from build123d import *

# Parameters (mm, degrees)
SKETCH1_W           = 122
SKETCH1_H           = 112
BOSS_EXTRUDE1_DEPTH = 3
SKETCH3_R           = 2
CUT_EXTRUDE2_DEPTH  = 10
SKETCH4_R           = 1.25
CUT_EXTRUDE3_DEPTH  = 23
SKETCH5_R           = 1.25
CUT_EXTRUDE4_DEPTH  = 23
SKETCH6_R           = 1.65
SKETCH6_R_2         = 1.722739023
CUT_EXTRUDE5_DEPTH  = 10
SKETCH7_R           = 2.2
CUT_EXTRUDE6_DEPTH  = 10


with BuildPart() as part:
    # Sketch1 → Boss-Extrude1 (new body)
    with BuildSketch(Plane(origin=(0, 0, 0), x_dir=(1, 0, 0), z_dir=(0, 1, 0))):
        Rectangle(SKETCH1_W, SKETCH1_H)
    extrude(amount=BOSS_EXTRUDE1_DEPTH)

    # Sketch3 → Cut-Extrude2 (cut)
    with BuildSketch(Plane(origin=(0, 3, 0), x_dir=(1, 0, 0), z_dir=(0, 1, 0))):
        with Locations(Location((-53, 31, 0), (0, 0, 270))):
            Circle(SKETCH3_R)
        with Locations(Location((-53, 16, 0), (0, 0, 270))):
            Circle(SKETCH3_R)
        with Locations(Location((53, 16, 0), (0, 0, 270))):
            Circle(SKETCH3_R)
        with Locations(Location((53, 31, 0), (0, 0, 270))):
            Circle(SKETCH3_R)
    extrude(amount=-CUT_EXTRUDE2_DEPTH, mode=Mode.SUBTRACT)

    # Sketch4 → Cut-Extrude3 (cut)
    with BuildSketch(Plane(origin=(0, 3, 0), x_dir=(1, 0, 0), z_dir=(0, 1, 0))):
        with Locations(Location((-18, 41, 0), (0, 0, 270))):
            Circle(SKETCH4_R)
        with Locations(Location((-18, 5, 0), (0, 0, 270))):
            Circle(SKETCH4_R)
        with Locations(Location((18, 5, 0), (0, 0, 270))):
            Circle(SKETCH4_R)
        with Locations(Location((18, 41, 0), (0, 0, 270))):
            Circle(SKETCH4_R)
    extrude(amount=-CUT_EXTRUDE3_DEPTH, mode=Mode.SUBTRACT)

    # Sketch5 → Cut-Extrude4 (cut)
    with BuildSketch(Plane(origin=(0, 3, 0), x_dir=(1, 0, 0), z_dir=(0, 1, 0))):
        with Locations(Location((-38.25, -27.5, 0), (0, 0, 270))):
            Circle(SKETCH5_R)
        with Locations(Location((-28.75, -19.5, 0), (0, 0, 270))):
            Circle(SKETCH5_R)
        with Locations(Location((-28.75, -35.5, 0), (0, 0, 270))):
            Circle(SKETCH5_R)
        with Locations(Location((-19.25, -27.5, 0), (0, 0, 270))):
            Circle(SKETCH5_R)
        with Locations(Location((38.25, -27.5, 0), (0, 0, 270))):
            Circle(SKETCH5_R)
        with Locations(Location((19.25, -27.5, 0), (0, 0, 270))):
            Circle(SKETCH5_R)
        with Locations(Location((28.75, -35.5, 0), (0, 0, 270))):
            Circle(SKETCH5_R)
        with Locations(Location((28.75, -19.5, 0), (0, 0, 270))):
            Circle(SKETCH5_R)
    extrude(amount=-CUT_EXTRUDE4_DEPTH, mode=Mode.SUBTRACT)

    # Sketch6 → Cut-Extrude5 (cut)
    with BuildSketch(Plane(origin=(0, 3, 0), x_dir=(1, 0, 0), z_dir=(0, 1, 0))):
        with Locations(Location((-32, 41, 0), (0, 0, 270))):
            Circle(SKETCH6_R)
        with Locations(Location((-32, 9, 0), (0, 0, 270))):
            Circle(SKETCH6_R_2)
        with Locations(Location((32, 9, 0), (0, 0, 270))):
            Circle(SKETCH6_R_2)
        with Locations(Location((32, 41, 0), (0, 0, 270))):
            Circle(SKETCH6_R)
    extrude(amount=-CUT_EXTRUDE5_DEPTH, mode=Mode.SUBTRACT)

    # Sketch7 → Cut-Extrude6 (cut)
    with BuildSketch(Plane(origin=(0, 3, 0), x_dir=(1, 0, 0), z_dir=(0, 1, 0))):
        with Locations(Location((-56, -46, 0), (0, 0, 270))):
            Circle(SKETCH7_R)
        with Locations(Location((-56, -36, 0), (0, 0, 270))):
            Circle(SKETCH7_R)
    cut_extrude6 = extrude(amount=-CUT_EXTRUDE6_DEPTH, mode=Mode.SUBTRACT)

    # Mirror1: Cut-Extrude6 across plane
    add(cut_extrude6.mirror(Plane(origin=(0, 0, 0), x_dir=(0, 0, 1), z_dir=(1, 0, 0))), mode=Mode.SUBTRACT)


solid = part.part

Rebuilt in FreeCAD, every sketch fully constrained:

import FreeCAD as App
import Part
import Sketcher

V = App.Vector
Q = App.Units.Quantity


def add_polygon(sketch, points):
    """Adds a closed chain of lines whose ends are joined by coincident constraints."""
    first, n = sketch.GeometryCount, len(points)
    for a, b in zip(points, points[1:] + points[:1]):
        sketch.addGeometry(Part.LineSegment(App.Vector(*a, 0), App.Vector(*b, 0)), False)
    for i in range(n):
        sketch.addConstraint(Sketcher.Constraint("Coincident", first + i, 2, first + (i + 1) % n, 1))

doc = App.newDocument("Part")
params = doc.addObject("Spreadsheet::Sheet", "Params")
for row, (alias, value) in enumerate([
    ("sketch1_width", "122 mm"),
    ("sketch1_height", "112 mm"),
    ("pad1_length", "3 mm"),
    ("sketch2_diameter", "4 mm"),
    ("pocket1_length", "10 mm"),
    ("sketch3_diameter", "2.5 mm"),
    ("pocket2_length", "23 mm"),
    ("sketch4_diameter", "2.5 mm"),
    ("pocket3_length", "23 mm"),
    ("sketch5_diameter", "3.3 mm"),
    ("pocket4_length", "10 mm"),
    ("sketch6_diameter", "4.4 mm"),
    ("pocket5_length", "10 mm"),
], start=1):
    params.set(f"A{row}", alias)
    params.set(f"B{row}", "=" + value)
    params.setAlias(f"B{row}", alias)

body = doc.addObject("PartDesign::Body", "Body")

# Sketch on XZ plane
sketch1 = doc.addObject("Sketcher::SketchObject", "Sketch")
body.addObject(sketch1)
sketch1.AttachmentSupport = (doc.XZ_Plane, [""])
sketch1.MapMode = "FlatFace"
add_polygon(sketch1, [(-61, -56), (-61, 56), (61, 56), (61, -56)])  # lines 0-3
sketch1.addConstraint([
    Sketcher.Constraint("Vertical", 0),
    Sketcher.Constraint("Horizontal", 1),
    Sketcher.Constraint("Vertical", 2),
    Sketcher.Constraint("Horizontal", 3),
    Sketcher.Constraint("Symmetric", 0, 2, 2, 2, -1, 1),
    Sketcher.Constraint("DistanceX", 1, 1, 1, 2, Q("122 mm")),
    Sketcher.Constraint("DistanceY", 0, 1, 0, 2, Q("112 mm")),
])
sketch1.setExpression("Constraints[9]", "Params.sketch1_width")
sketch1.setExpression("Constraints[10]", "Params.sketch1_height")
pad1 = doc.addObject("PartDesign::Pad", "Pad")
body.addObject(pad1)
pad1.Profile = sketch1
pad1.setExpression("Length", "Params.pad1_length")
pad1.Reversed = True

# Sketch on XZ plane
sketch2 = doc.addObject("Sketcher::SketchObject", "Sketch001")
body.addObject(sketch2)
sketch2.AttachmentSupport = (doc.XZ_Plane, [""])
sketch2.MapMode = "FlatFace"
sketch2.AttachmentOffset = App.Placement(V(0, 0, -3), App.Rotation())
sketch2.addGeometry([
    Part.Circle(V(-53, -31, 0), V(0, 0, 1), 2),
    Part.Circle(V(-53, -16, 0), V(0, 0, 1), 2),
    Part.Circle(V(53, -16, 0), V(0, 0, 1), 2),
    Part.Circle(V(53, -31, 0), V(0, 0, 1), 2),
], False)
sketch2.addConstraint([
    Sketcher.Constraint("Equal", 0, 1),
    Sketcher.Constraint("Equal", 1, 2),
    Sketcher.Constraint("Equal", 2, 3),
    Sketcher.Constraint("Symmetric", 1, 3, 2, 3, -2),
    Sketcher.Constraint("Symmetric", 0, 3, 3, 3, -2),
    Sketcher.Constraint("Vertical", 0, 3, 1, 3),
    Sketcher.Constraint("Diameter", 0, Q("4 mm")),
    Sketcher.Constraint("DistanceX", 0, 3, -1, 1, Q("53 mm")),
    Sketcher.Constraint("DistanceY", 0, 3, -1, 1, Q("31 mm")),
    Sketcher.Constraint("DistanceY", 1, 3, -1, 1, Q("16 mm")),
])
sketch2.setExpression("Constraints[6]", "Params.sketch2_diameter")
pocket1 = doc.addObject("PartDesign::Pocket", "Pocket")
body.addObject(pocket1)
pocket1.Profile = sketch2
pocket1.setExpression("Length", "Params.pocket1_length")
pocket1.Reversed = True

# Sketch on XZ plane
sketch3 = doc.addObject("Sketcher::SketchObject", "Sketch002")
body.addObject(sketch3)
sketch3.AttachmentSupport = (doc.XZ_Plane, [""])
sketch3.MapMode = "FlatFace"
sketch3.AttachmentOffset = App.Placement(V(0, 0, -3), App.Rotation())
sketch3.addGeometry([
    Part.Circle(V(-18, -41, 0), V(0, 0, 1), 1.25),
    Part.Circle(V(-18, -5, 0), V(0, 0, 1), 1.25),
    Part.Circle(V(18, -5, 0), V(0, 0, 1), 1.25),
    Part.Circle(V(18, -41, 0), V(0, 0, 1), 1.25),
], False)
sketch3.addConstraint([
    Sketcher.Constraint("Equal", 0, 1),
    Sketcher.Constraint("Equal", 1, 2),
    Sketcher.Constraint("Equal", 2, 3),
    Sketcher.Constraint("Symmetric", 1, 3, 2, 3, -2),
    Sketcher.Constraint("Symmetric", 0, 3, 3, 3, -2),
    Sketcher.Constraint("Vertical", 0, 3, 1, 3),
    Sketcher.Constraint("Diameter", 0, Q("2.5 mm")),
    Sketcher.Constraint("DistanceX", 0, 3, -1, 1, Q("18 mm")),
    Sketcher.Constraint("DistanceY", 0, 3, -1, 1, Q("41 mm")),
    Sketcher.Constraint("DistanceY", 1, 3, -1, 1, Q("5 mm")),
])
sketch3.setExpression("Constraints[6]", "Params.sketch3_diameter")
pocket2 = doc.addObject("PartDesign::Pocket", "Pocket001")
body.addObject(pocket2)
pocket2.Profile = sketch3
pocket2.setExpression("Length", "Params.pocket2_length")
pocket2.Reversed = True

# Sketch on XZ plane
sketch4 = doc.addObject("Sketcher::SketchObject", "Sketch003")
body.addObject(sketch4)
sketch4.AttachmentSupport = (doc.XZ_Plane, [""])
sketch4.MapMode = "FlatFace"
sketch4.AttachmentOffset = App.Placement(V(0, 0, -3), App.Rotation())
sketch4.addGeometry([
    Part.Circle(V(-38.25, 27.5, 0), V(0, 0, 1), 1.25),  # 0
    Part.Circle(V(-28.75, 19.5, 0), V(0, 0, 1), 1.25),  # 1
    Part.Circle(V(-28.75, 35.5, 0), V(0, 0, 1), 1.25),  # 2
    Part.Circle(V(-19.25, 27.5, 0), V(0, 0, 1), 1.25),  # 3
    Part.Circle(V(38.25, 27.5, 0), V(0, 0, 1), 1.25),  # 4
    Part.Circle(V(19.25, 27.5, 0), V(0, 0, 1), 1.25),  # 5
    Part.Circle(V(28.75, 35.5, 0), V(0, 0, 1), 1.25),  # 6
    Part.Circle(V(28.75, 19.5, 0), V(0, 0, 1), 1.25),  # 7
], False)
sketch4.addConstraint([
    Sketcher.Constraint("Equal", 0, 1),
    Sketcher.Constraint("Equal", 1, 2),
    Sketcher.Constraint("Equal", 2, 3),
    Sketcher.Constraint("Equal", 3, 4),
    Sketcher.Constraint("Equal", 4, 5),
    Sketcher.Constraint("Equal", 5, 6),
    Sketcher.Constraint("Equal", 6, 7),
    Sketcher.Constraint("Symmetric", 0, 3, 4, 3, -2),
    Sketcher.Constraint("Symmetric", 3, 3, 5, 3, -2),
    Sketcher.Constraint("Symmetric", 2, 3, 6, 3, -2),
    Sketcher.Constraint("Symmetric", 1, 3, 7, 3, -2),
    Sketcher.Constraint("Horizontal", 0, 3, 3, 3),
    Sketcher.Constraint("Vertical", 1, 3, 2, 3),
    Sketcher.Constraint("Diameter", 0, Q("2.5 mm")),
    Sketcher.Constraint("DistanceY", 1, 3, 0, 3, Q("8 mm")),
    Sketcher.Constraint("DistanceY", 0, 3, 2, 3, Q("8 mm")),
    Sketcher.Constraint("DistanceX", 0, 3, 3, 3, Q("19 mm")),
    Sketcher.Constraint("DistanceX", 1, 3, 4, 3, Q("67 mm")),
    Sketcher.Constraint("DistanceY", -1, 1, 0, 3, Q("27.5 mm")),
    Sketcher.Constraint("DistanceX", 0, 3, 1, 3, Q("9.5 mm")),
])
sketch4.setExpression("Constraints[13]", "Params.sketch4_diameter")
pocket3 = doc.addObject("PartDesign::Pocket", "Pocket002")
body.addObject(pocket3)
pocket3.Profile = sketch4
pocket3.setExpression("Length", "Params.pocket3_length")
pocket3.Reversed = True

# Sketch on XZ plane
sketch5 = doc.addObject("Sketcher::SketchObject", "Sketch004")
body.addObject(sketch5)
sketch5.AttachmentSupport = (doc.XZ_Plane, [""])
sketch5.MapMode = "FlatFace"
sketch5.AttachmentOffset = App.Placement(V(0, 0, -3), App.Rotation())
sketch5.addGeometry([
    Part.Circle(V(-32, -41, 0), V(0, 0, 1), 1.65),
    Part.Circle(V(-32, -9, 0), V(0, 0, 1), 1.722739),
    Part.Circle(V(32, -9, 0), V(0, 0, 1), 1.722739),
    Part.Circle(V(32, -41, 0), V(0, 0, 1), 1.65),
], False)
sketch5.addConstraint([
    Sketcher.Constraint("Equal", 1, 2),
    Sketcher.Constraint("Equal", 0, 3),
    Sketcher.Constraint("Symmetric", 1, 3, 2, 3, -2),
    Sketcher.Constraint("Symmetric", 0, 3, 3, 3, -2),
    Sketcher.Constraint("Vertical", 0, 3, 1, 3),
    Sketcher.Constraint("Diameter", 0, Q("3.3 mm")),
    Sketcher.Constraint("DistanceX", 0, 3, -1, 1, Q("32 mm")),
    Sketcher.Constraint("DistanceY", 0, 3, -1, 1, Q("41 mm")),
    Sketcher.Constraint("DistanceY", 1, 3, -1, 1, Q("9 mm")),
    Sketcher.Constraint("Diameter", 1, Q("3.445478 mm")),
])
sketch5.setExpression("Constraints[5]", "Params.sketch5_diameter")
pocket4 = doc.addObject("PartDesign::Pocket", "Pocket003")
body.addObject(pocket4)
pocket4.Profile = sketch5
pocket4.setExpression("Length", "Params.pocket4_length")
pocket4.Reversed = True

# Sketch on XZ plane
sketch6 = doc.addObject("Sketcher::SketchObject", "Sketch005")
body.addObject(sketch6)
sketch6.AttachmentSupport = (doc.XZ_Plane, [""])
sketch6.MapMode = "FlatFace"
sketch6.AttachmentOffset = App.Placement(V(0, 0, -3), App.Rotation())
sketch6.addGeometry([
    Part.Circle(V(-56, 46, 0), V(0, 0, 1), 2.2),
    Part.Circle(V(-56, 36, 0), V(0, 0, 1), 2.2),
], False)
sketch6.addConstraint([
    Sketcher.Constraint("Equal", 0, 1),
    Sketcher.Constraint("Vertical", 0, 3, 1, 3),
    Sketcher.Constraint("Diameter", 0, Q("4.4 mm")),
    Sketcher.Constraint("DistanceX", 0, 3, -1, 1, Q("56 mm")),
    Sketcher.Constraint("DistanceY", -1, 1, 0, 3, Q("46 mm")),
    Sketcher.Constraint("DistanceY", -1, 1, 1, 3, Q("36 mm")),
])
sketch6.setExpression("Constraints[2]", "Params.sketch6_diameter")
pocket5 = doc.addObject("PartDesign::Pocket", "Pocket004")
body.addObject(pocket5)
pocket5.Profile = sketch6
pocket5.setExpression("Length", "Params.pocket5_length")
pocket5.Reversed = True
doc.recompute()

mirrored = doc.addObject("PartDesign::Mirrored", "Mirrored")
body.addObject(mirrored)
mirrored.Originals = [pocket5]
mirrored.MirrorPlane = (doc.YZ_Plane, [""])
body.Tip = mirrored

doc.recompute()
